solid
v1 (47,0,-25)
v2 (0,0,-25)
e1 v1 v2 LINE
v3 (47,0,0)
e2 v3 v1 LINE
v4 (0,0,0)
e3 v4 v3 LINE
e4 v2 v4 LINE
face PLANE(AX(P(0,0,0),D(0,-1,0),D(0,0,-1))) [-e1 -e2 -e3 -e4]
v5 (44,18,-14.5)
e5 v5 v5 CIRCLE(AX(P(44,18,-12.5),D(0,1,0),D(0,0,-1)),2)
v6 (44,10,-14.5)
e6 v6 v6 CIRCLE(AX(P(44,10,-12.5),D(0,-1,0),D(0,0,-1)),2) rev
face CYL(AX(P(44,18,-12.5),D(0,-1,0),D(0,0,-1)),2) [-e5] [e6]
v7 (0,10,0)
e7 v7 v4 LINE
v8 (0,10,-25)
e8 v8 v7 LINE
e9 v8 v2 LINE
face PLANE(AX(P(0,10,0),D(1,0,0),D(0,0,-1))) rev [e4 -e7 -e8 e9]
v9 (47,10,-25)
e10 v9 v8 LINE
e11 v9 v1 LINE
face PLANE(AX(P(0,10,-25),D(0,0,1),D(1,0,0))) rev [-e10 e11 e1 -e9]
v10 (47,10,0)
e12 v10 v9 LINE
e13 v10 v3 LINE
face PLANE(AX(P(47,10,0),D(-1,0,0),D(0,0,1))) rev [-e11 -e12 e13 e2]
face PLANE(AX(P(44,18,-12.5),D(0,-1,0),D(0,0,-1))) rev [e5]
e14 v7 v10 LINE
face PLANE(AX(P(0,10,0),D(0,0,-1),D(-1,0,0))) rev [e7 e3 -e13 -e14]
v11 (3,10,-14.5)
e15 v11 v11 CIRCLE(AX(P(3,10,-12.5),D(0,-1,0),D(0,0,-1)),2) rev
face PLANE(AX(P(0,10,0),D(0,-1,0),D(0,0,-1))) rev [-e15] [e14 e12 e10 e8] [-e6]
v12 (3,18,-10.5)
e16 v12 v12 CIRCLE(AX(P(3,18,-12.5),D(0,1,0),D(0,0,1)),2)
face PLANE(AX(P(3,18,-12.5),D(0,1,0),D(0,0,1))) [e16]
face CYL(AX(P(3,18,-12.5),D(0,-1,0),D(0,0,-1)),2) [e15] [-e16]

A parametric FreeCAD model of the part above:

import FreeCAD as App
import Part
import Sketcher
from FreeCAD import Vector
Q = App.Units.Quantity


def add_polygon(sketch, points):
    """Adds a closed chain of lines whose ends are joined by coincident constraints."""
    first, n = sketch.GeometryCount, len(points)
    for a, b in zip(points, points[1:] + points[:1]):
        sketch.addGeometry(Part.LineSegment(App.Vector(*a, 0), App.Vector(*b, 0)), False)
    for i in range(n):
        sketch.addConstraint(Sketcher.Constraint("Coincident", first + i, 2, first + (i + 1) % n, 1))

doc = App.newDocument("Part")
params = doc.addObject("Spreadsheet::Sheet", "Params")
for row, (alias, value) in enumerate([
    ("sketch1_width", "47 mm"),
    ("sketch1_height", "25 mm"),
    ("pad1_length", "10 mm"),
    ("sketch2_diameter", "4 mm"),
    ("pad2_length", "8 mm"),
], start=1):
    params.set(f"A{row}", alias)
    params.set(f"B{row}", "=" + value)
    params.setAlias(f"B{row}", alias)

body = doc.addObject("PartDesign::Body", "Body")

# Sketch on XZ plane
sketch1 = body.newObject("Sketcher::SketchObject", "Sketch")
sketch1.AttachmentSupport = (doc.getObject("XZ_Plane"), [""])
sketch1.MapMode = "FlatFace"
add_polygon(sketch1, [(0, -25), (0, 0), (47, 0), (47, -25)])  # lines 0-3
sketch1.addConstraint([
    Sketcher.Constraint("Vertical", 0),
    Sketcher.Constraint("Horizontal", 1),
    Sketcher.Constraint("Vertical", 2),
    Sketcher.Constraint("Horizontal", 3),
    Sketcher.Constraint("Coincident", 0, 2, -1, 1),
    Sketcher.Constraint("DistanceX", 1, 1, 1, 2, Q("47 mm")),
    Sketcher.Constraint("DistanceY", 0, 1, 0, 2, Q("25 mm")),
])
sketch1.setExpression("Constraints[9]", "Params.sketch1_width")
sketch1.setExpression("Constraints[10]", "Params.sketch1_height")
pad1 = body.newObject("PartDesign::Pad", "Pad")
pad1.Profile = sketch1
pad1.setExpression("Length", "Params.pad1_length")
pad1.Reversed = True

# Sketch on XZ plane
sketch2 = body.newObject("Sketcher::SketchObject", "Sketch001")
sketch2.AttachmentSupport = (doc.getObject("XZ_Plane"), [""])
sketch2.MapMode = "FlatFace"
sketch2.AttachmentOffset = App.Placement(Vector(0, 0, -10), App.Rotation())
sketch2.addGeometry([
    Part.Circle(Vector(3, -12.5, 0), Vector(0, 0, 1), 2),
    Part.Circle(Vector(44, -12.5, 0), Vector(0, 0, 1), 2),
], False)
sketch2.addConstraint([
    Sketcher.Constraint("Equal", 0, 1),
    Sketcher.Constraint("Horizontal", 0, 3, 1, 3),
    Sketcher.Constraint("Diameter", 0, Q("4 mm")),
    Sketcher.Constraint("DistanceX", -1, 1, 0, 3, Q("3 mm")),
    Sketcher.Constraint("DistanceX", -1, 1, 1, 3, Q("44 mm")),
    Sketcher.Constraint("DistanceY", 0, 3, -1, 1, Q("12.5 mm")),
])
sketch2.setExpression("Constraints[2]", "Params.sketch2_diameter")
pad2 = body.newObject("PartDesign::Pad", "Pad001")
pad2.Profile = sketch2
pad2.setExpression("Length", "Params.pad2_length")
pad2.Reversed = True

doc.recompute()
